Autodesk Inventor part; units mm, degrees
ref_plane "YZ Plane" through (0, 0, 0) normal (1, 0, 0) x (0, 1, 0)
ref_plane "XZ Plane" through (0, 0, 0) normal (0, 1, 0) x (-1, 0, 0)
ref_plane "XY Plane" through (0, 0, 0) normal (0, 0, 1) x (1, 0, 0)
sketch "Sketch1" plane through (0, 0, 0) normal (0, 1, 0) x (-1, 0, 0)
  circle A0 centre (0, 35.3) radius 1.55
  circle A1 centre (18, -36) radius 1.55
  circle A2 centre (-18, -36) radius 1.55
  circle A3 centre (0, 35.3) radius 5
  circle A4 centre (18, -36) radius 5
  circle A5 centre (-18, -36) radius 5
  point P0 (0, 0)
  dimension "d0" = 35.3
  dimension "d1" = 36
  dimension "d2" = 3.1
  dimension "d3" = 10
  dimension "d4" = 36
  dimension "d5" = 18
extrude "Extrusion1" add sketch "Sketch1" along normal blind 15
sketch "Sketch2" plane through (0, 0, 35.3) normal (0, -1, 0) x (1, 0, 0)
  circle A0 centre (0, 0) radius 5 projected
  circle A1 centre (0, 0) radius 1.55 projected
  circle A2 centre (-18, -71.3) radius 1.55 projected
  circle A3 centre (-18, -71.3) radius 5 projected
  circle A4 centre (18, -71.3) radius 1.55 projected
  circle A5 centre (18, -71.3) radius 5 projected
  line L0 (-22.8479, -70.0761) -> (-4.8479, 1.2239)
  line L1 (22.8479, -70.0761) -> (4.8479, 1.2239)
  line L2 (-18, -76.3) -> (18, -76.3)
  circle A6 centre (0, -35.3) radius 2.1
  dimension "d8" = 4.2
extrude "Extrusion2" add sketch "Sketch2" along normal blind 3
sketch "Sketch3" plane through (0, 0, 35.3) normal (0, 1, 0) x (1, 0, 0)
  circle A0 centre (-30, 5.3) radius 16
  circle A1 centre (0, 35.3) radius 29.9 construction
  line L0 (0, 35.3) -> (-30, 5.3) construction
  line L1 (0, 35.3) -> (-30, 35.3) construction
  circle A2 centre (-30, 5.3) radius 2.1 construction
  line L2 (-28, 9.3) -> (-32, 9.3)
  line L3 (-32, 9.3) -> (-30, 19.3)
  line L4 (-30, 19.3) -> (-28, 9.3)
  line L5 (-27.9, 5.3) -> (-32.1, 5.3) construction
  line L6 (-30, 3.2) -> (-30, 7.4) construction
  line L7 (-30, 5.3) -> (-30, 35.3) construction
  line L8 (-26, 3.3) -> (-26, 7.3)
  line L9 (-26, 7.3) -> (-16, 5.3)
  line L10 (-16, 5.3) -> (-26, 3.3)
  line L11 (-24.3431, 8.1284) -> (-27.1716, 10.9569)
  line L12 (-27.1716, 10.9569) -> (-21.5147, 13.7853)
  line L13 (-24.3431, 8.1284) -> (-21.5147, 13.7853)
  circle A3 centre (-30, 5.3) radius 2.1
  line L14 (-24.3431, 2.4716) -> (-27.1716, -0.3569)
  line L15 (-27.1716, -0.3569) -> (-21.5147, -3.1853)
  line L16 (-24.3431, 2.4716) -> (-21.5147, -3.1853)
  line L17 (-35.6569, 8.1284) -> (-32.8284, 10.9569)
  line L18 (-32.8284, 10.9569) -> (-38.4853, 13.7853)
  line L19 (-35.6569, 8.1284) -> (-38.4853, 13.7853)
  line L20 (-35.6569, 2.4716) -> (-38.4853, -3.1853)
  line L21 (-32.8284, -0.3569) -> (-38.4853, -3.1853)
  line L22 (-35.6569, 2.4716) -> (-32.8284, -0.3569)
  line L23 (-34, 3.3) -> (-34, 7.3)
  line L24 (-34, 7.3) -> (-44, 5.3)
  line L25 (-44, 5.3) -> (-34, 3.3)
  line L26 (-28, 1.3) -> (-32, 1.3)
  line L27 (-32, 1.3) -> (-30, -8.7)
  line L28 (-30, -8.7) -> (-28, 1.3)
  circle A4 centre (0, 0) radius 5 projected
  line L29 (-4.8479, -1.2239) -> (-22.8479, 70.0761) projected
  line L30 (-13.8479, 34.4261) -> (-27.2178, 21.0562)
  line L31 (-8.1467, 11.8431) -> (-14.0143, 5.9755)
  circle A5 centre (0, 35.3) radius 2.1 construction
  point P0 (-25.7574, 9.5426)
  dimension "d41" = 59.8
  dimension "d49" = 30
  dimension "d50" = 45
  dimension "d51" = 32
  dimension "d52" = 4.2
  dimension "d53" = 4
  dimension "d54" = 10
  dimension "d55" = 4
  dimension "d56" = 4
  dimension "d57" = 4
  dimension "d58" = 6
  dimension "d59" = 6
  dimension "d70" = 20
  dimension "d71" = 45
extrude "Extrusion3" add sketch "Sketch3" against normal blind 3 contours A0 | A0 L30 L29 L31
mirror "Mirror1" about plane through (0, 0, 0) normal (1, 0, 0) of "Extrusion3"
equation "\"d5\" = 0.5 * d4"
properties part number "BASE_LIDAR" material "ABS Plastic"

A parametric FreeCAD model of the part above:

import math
import FreeCAD as App
import Part
import Sketcher

doc = App.newDocument("Part")
body = doc.addObject("PartDesign::Body", "Body")
body.AllowCompound = True

sketch1 = body.newObject("Sketcher::SketchObject", "Sketch")
sketch1.AttachmentSupport = (doc.getObject("XZ_Plane"), [""])
sketch1.MapMode = "FlatFace"
sketch1.addGeometry(Part.Circle(App.Vector(0, 35.3, 0), App.Vector(0, 0, 1), 5), False)
sketch1.addGeometry(Part.Circle(App.Vector(0, 35.3, 0), App.Vector(0, 0, 1), 1.6), False)
sketch1.addGeometry(Part.Circle(App.Vector(-18, -36, 0), App.Vector(0, 0, 1), 5), False)
sketch1.addGeometry(Part.Circle(App.Vector(-18, -36, 0), App.Vector(0, 0, 1), 1.6), False)
sketch1.addGeometry(Part.Circle(App.Vector(18, -36, 0), App.Vector(0, 0, 1), 5), False)
sketch1.addGeometry(Part.Circle(App.Vector(18, -36, 0), App.Vector(0, 0, 1), 1.6), False)
sketch1.addConstraint(Sketcher.Constraint("Coincident", 1, 3, 0, 3))
sketch1.addConstraint(Sketcher.Constraint("Coincident", 3, 3, 2, 3))
sketch1.addConstraint(Sketcher.Constraint("Coincident", 5, 3, 4, 3))
sketch1.addConstraint(Sketcher.Constraint("Equal", 0, 2))
sketch1.addConstraint(Sketcher.Constraint("Equal", 1, 3))
sketch1.addConstraint(Sketcher.Constraint("Equal", 2, 4))
sketch1.addConstraint(Sketcher.Constraint("Equal", 3, 5))
sketch1.addConstraint(Sketcher.Constraint("Symmetric", 2, 3, 4, 3, -2))
sketch1.addConstraint(Sketcher.Constraint("PointOnObject", 0, 3, -2))
sketch1.addConstraint(Sketcher.Constraint("Diameter", 0, 10.0))
sketch1.addConstraint(Sketcher.Constraint("Diameter", 1, 3.1))
sketch1.addConstraint(Sketcher.Constraint("DistanceX", 2, 3, -1, 1, 18.0))
sketch1.addConstraint(Sketcher.Constraint("DistanceY", 2, 3, -1, 1, 36.0))
sketch1.addConstraint(Sketcher.Constraint("DistanceY", -1, 1, 0, 3, 35.3))
pad1 = body.newObject("PartDesign::Pad", "Pad")
pad1.Profile = sketch1
pad1.Length = 15
pad1.Reversed = True

sketch2 = body.newObject("Sketcher::SketchObject", "Sketch001")
sketch2.AttachmentSupport = (doc.getObject("XZ_Plane"), [""])
sketch2.MapMode = "FlatFace"
sketch2.addGeometry(Part.ArcOfCircle(Part.Circle(App.Vector(0, 35.3, 0), App.Vector(0, 0, 1), 5), math.radians(14), math.radians(166)), False)
sketch2.addGeometry(Part.LineSegment(App.Vector(-4.8, 36.5, 0), App.Vector(-22.8, -34.8, 0)), False)
sketch2.addGeometry(Part.ArcOfCircle(Part.Circle(App.Vector(-18, -36, 0), App.Vector(0, 0, 1), 5), math.radians(166), math.radians(270)), False)
sketch2.addGeometry(Part.LineSegment(App.Vector(-18, -41, 0), App.Vector(18, -41, 0)), False)
sketch2.addGeometry(Part.ArcOfCircle(Part.Circle(App.Vector(18, -36, 0), App.Vector(0, 0, 1), 5), math.radians(-90), math.radians(14)), False)
sketch2.addGeometry(Part.LineSegment(App.Vector(22.8, -34.8, 0), App.Vector(4.8, 36.5, 0)), False)
sketch2.addGeometry(Part.Circle(App.Vector(0, 35.3, 0), App.Vector(0, 0, 1), 1.6), False)
sketch2.addGeometry(Part.Circle(App.Vector(0, 0, 0), App.Vector(0, 0, 1), 2.1), False)
sketch2.addGeometry(Part.Circle(App.Vector(18, -36, 0), App.Vector(0, 0, 1), 1.6), False)
sketch2.addGeometry(Part.Circle(App.Vector(-18, -36, 0), App.Vector(0, 0, 1), 1.6), False)
sketch2.addConstraint(Sketcher.Constraint("Tangent", 0, 2, 1, 1))
sketch2.addConstraint(Sketcher.Constraint("Tangent", 1, 2, 2, 1))
sketch2.addConstraint(Sketcher.Constraint("Tangent", 2, 2, 3, 1))
sketch2.addConstraint(Sketcher.Constraint("Tangent", 3, 2, 4, 1))
sketch2.addConstraint(Sketcher.Constraint("Tangent", 4, 2, 5, 1))
sketch2.addConstraint(Sketcher.Constraint("Tangent", 5, 2, 0, 1))
sketch2.addConstraint(Sketcher.Constraint("Horizontal", 3))
sketch2.addConstraint(Sketcher.Constraint("Coincident", 7, 3, -1, 1))
sketch2.addConstraint(Sketcher.Constraint("Coincident", 6, 3, 0, 3))
sketch2.addConstraint(Sketcher.Constraint("Coincident", 8, 3, 4, 3))
sketch2.addConstraint(Sketcher.Constraint("Coincident", 9, 3, 2, 3))
sketch2.addConstraint(Sketcher.Constraint("Equal", 0, 2))
sketch2.addConstraint(Sketcher.Constraint("Equal", 2, 4))
sketch2.addConstraint(Sketcher.Constraint("Equal", 6, 8))
sketch2.addConstraint(Sketcher.Constraint("Equal", 8, 9))
sketch2.addConstraint(Sketcher.Constraint("Symmetric", 1, 2, 4, 2, -2))
sketch2.addConstraint(Sketcher.Constraint("Diameter", 7, 4.2))
sketch2.addConstraint(Sketcher.Constraint("Radius", 0, 5.0))
sketch2.addConstraint(Sketcher.Constraint("Diameter", 6, 3.1))
sketch2.addConstraint(Sketcher.Constraint("DistanceX", 3, 1, 3, 2, 36.0))
sketch2.addConstraint(Sketcher.Constraint("DistanceY", 2, 3, -1, 1, 36.0))
sketch2.addConstraint(Sketcher.Constraint("DistanceY", -1, 1, 0, 3, 35.3))
pad2 = body.newObject("PartDesign::Pad", "Pad001")
pad2.Profile = sketch2
pad2.Length = 3

sketch3 = body.newObject("Sketcher::SketchObject", "Sketch002")
sketch3.AttachmentSupport = (doc.getObject("XZ_Plane"), [""])
sketch3.MapMode = "FlatFace"
sketch3.addGeometry(Part.ArcOfCircle(Part.Circle(App.Vector(-30, 30, 0), App.Vector(0, 0, 1), 16), math.radians(-2), math.radians(280)), False)
sketch3.addGeometry(Part.LineSegment(App.Vector(-14, 29.3, 0), App.Vector(-8.1, 23.5, 0)), False)
sketch3.addGeometry(Part.LineSegment(App.Vector(-8.1, 23.5, 0), App.Vector(-13.8, 0.9, 0)), False)
sketch3.addGeometry(Part.LineSegment(App.Vector(-13.8, 0.9, 0), App.Vector(-27.2, 14.2, 0)), False)
sketch3.addGeometry(Part.LineSegment(App.Vector(-38.5, 38.5, 0), App.Vector(-35.7, 32.8, 0)), False)
sketch3.addGeometry(Part.LineSegment(App.Vector(-35.7, 32.8, 0), App.Vector(-32.8, 35.7, 0)), False)
sketch3.addGeometry(Part.LineSegment(App.Vector(-32.8, 35.7, 0), App.Vector(-38.5, 38.5, 0)), False)
sketch3.addGeometry(Part.LineSegment(App.Vector(-32, 34, 0), App.Vector(-28, 34, 0)), False)
sketch3.addGeometry(Part.LineSegment(App.Vector(-28, 34, 0), App.Vector(-30, 44, 0)), False)
sketch3.addGeometry(Part.LineSegment(App.Vector(-30, 44, 0), App.Vector(-32, 34, 0)), False)
sketch3.addGeometry(Part.LineSegment(App.Vector(-27.2, 35.7, 0), App.Vector(-24.3, 32.8, 0)), False)
sketch3.addGeometry(Part.LineSegment(App.Vector(-24.3, 32.8, 0), App.Vector(-21.5, 38.5, 0)), False)
sketch3.addGeometry(Part.LineSegment(App.Vector(-21.5, 38.5, 0), App.Vector(-27.2, 35.7, 0)), False)
sketch3.addGeometry(Part.LineSegment(App.Vector(-34, 28, 0), App.Vector(-34, 32, 0)), False)
sketch3.addGeometry(Part.LineSegment(App.Vector(-34, 32, 0), App.Vector(-44, 30, 0)), False)
sketch3.addGeometry(Part.LineSegment(App.Vector(-44, 30, 0), App.Vector(-34, 28, 0)), False)
sketch3.addGeometry(Part.LineSegment(App.Vector(-32.8, 24.3, 0), App.Vector(-35.7, 27.2, 0)), False)
sketch3.addGeometry(Part.LineSegment(App.Vector(-35.7, 27.2, 0), App.Vector(-38.5, 21.5, 0)), False)
sketch3.addGeometry(Part.LineSegment(App.Vector(-38.5, 21.5, 0), App.Vector(-32.8, 24.3, 0)), False)
sketch3.addGeometry(Part.Circle(App.Vector(-30, 30, 0), App.Vector(0, 0, 1), 2.1), False)
sketch3.addGeometry(Part.LineSegment(App.Vector(-16, 30, 0), App.Vector(-26, 32, 0)), False)
sketch3.addGeometry(Part.LineSegment(App.Vector(-26, 32, 0), App.Vector(-26, 28, 0)), False)
sketch3.addGeometry(Part.LineSegment(App.Vector(-26, 28, 0), App.Vector(-16, 30, 0)), False)
sketch3.addGeometry(Part.LineSegment(App.Vector(-21.5, 21.5, 0), App.Vector(-24.3, 27.2, 0)), False)
sketch3.addGeometry(Part.LineSegment(App.Vector(-24.3, 27.2, 0), App.Vector(-27.2, 24.3, 0)), False)
sketch3.addGeometry(Part.LineSegment(App.Vector(-27.2, 24.3, 0), App.Vector(-21.5, 21.5, 0)), False)
sketch3.addGeometry(Part.LineSegment(App.Vector(-30, 16, 0), App.Vector(-28, 26, 0)), False)
sketch3.addGeometry(Part.LineSegment(App.Vector(-28, 26, 0), App.Vector(-32, 26, 0)), False)
sketch3.addGeometry(Part.LineSegment(App.Vector(-32, 26, 0), App.Vector(-30, 16, 0)), False)
sketch3.addConstraint(Sketcher.Constraint("Coincident", 0, 1, 1, 1))
sketch3.addConstraint(Sketcher.Constraint("Coincident", 1, 2, 2, 1))
sketch3.addConstraint(Sketcher.Constraint("Coincident", 2, 2, 3, 1))
sketch3.addConstraint(Sketcher.Constraint("Coincident", 3, 2, 0, 2))
sketch3.addConstraint(Sketcher.Constraint("Coincident", 4, 2, 5, 1))
sketch3.addConstraint(Sketcher.Constraint("Coincident", 5, 2, 6, 1))
sketch3.addConstraint(Sketcher.Constraint("Coincident", 6, 2, 4, 1))
sketch3.addConstraint(Sketcher.Constraint("Coincident", 7, 2, 8, 1))
sketch3.addConstraint(Sketcher.Constraint("Coincident", 8, 2, 9, 1))
sketch3.addConstraint(Sketcher.Constraint("Coincident", 9, 2, 7, 1))
sketch3.addConstraint(Sketcher.Constraint("Coincident", 10, 2, 11, 1))
sketch3.addConstraint(Sketcher.Constraint("Coincident", 11, 2, 12, 1))
sketch3.addConstraint(Sketcher.Constraint("Coincident", 12, 2, 10, 1))
sketch3.addConstraint(Sketcher.Constraint("Coincident", 13, 2, 14, 1))
sketch3.addConstraint(Sketcher.Constraint("Coincident", 14, 2, 15, 1))
sketch3.addConstraint(Sketcher.Constraint("Coincident", 15, 2, 13, 1))
sketch3.addConstraint(Sketcher.Constraint("Coincident", 16, 2, 17, 1))
sketch3.addConstraint(Sketcher.Constraint("Coincident", 17, 2, 18, 1))
sketch3.addConstraint(Sketcher.Constraint("Coincident", 18, 2, 16, 1))
sketch3.addConstraint(Sketcher.Constraint("Coincident", 20, 2, 21, 1))
sketch3.addConstraint(Sketcher.Constraint("Coincident", 21, 2, 22, 1))
sketch3.addConstraint(Sketcher.Constraint("Coincident", 22, 2, 20, 1))
sketch3.addConstraint(Sketcher.Constraint("Coincident", 23, 2, 24, 1))
sketch3.addConstraint(Sketcher.Constraint("Coincident", 24, 2, 25, 1))
sketch3.addConstraint(Sketcher.Constraint("Coincident", 25, 2, 23, 1))
sketch3.addConstraint(Sketcher.Constraint("Coincident", 26, 2, 27, 1))
sketch3.addConstraint(Sketcher.Constraint("Coincident", 27, 2, 28, 1))
sketch3.addConstraint(Sketcher.Constraint("Coincident", 28, 2, 26, 1))
sketch3.addConstraint(Sketcher.Constraint("Horizontal", 7))
sketch3.addConstraint(Sketcher.Constraint("Vertical", 13))
sketch3.addConstraint(Sketcher.Constraint("Vertical", 21))
sketch3.addConstraint(Sketcher.Constraint("Horizontal", 27))
sketch3.addConstraint(Sketcher.Constraint("Coincident", 19, 3, 0, 3))
sketch3.addConstraint(Sketcher.Constraint("Parallel", 1, 3))
sketch3.addConstraint(Sketcher.Constraint("Perpendicular", 3, 5))
sketch3.addConstraint(Sketcher.Constraint("Perpendicular", 5, 10))
sketch3.addConstraint(Sketcher.Constraint("Perpendicular", 6, 11))
sketch3.addConstraint(Sketcher.Constraint("Perpendicular", 4, 12))
sketch3.addConstraint(Sketcher.Constraint("Perpendicular", 8, 14))
sketch3.addConstraint(Sketcher.Constraint("Perpendicular", 9, 15))
sketch3.addConstraint(Sketcher.Constraint("Parallel", 10, 16))
sketch3.addConstraint(Sketcher.Constraint("Parallel", 11, 17))
sketch3.addConstraint(Sketcher.Constraint("Parallel", 12, 18))
sketch3.addConstraint(Sketcher.Constraint("Parallel", 15, 20))
sketch3.addConstraint(Sketcher.Constraint("Parallel", 14, 22))
sketch3.addConstraint(Sketcher.Constraint("Perpendicular", 18, 23))
sketch3.addConstraint(Sketcher.Constraint("Perpendicular", 16, 24))
sketch3.addConstraint(Sketcher.Constraint("Perpendicular", 17, 25))
sketch3.addConstraint(Sketcher.Constraint("Perpendicular", 20, 26))
sketch3.addConstraint(Sketcher.Constraint("Perpendicular", 22, 28))
sketch3.addConstraint(Sketcher.Constraint("Horizontal", 4, 2, 10, 2))
sketch3.addConstraint(Sketcher.Constraint("Horizontal", 6, 2, 11, 2))
sketch3.addConstraint(Sketcher.Constraint("Horizontal", 5, 2, 12, 2))
sketch3.addConstraint(Sketcher.Constraint("Horizontal", 19, 3, 14, 2))
sketch3.addConstraint(Sketcher.Constraint("Horizontal", 13, 2, 20, 2))
sketch3.addConstraint(Sketcher.Constraint("Horizontal", 15, 2, 21, 2))
sketch3.addConstraint(Sketcher.Constraint("Horizontal", 14, 2, 22, 2))
sketch3.addConstraint(Sketcher.Constraint("Horizontal", 16, 2, 23, 2))
sketch3.addConstraint(Sketcher.Constraint("Horizontal", 18, 2, 24, 2))
sketch3.addConstraint(Sketcher.Constraint("Vertical", 19, 3, 8, 2))
sketch3.addConstraint(Sketcher.Constraint("Vertical", 4, 2, 16, 2))
sketch3.addConstraint(Sketcher.Constraint("Vertical", 6, 2, 17, 2))
sketch3.addConstraint(Sketcher.Constraint("Vertical", 10, 2, 23, 2))
sketch3.addConstraint(Sketcher.Constraint("Vertical", 12, 2, 24, 2))
sketch3.addConstraint(Sketcher.Constraint("Vertical", 7, 2, 26, 2))
sketch3.addConstraint(Sketcher.Constraint("Vertical", 9, 2, 27, 2))
sketch3.addConstraint(Sketcher.Constraint("Equal", 27, 13))
sketch3.addConstraint(Sketcher.Constraint("Radius", 0, 16.0))
sketch3.addConstraint(Sketcher.Constraint("Diameter", 19, 4.2))
sketch3.addConstraint(Sketcher.Constraint("DistanceX", 7, 1, 7, 2, 4.0))
sketch3.addConstraint(Sketcher.Constraint("Distance", 5, 4.0))
sketch3.addConstraint(Sketcher.Constraint("DistanceX", 0, 3, -1, 1, 30.0))
sketch3.addConstraint(Sketcher.Constraint("DistanceY", -1, 1, 0, 3, 30.0))
sketch3.addConstraint(Sketcher.Constraint("DistanceY", 0, 3, 7, 2, 4.0))
sketch3.addConstraint(Sketcher.Constraint("DistanceY", 7, 2, 8, 2, 10.0))
sketch3.addConstraint(Sketcher.Constraint("DistanceX", 13, 2, 0, 3, 4.0))
sketch3.addConstraint(Sketcher.Constraint("DistanceX", 0, 3, 20, 2, 4.0))
sketch3.addConstraint(Sketcher.Constraint("DistanceY", 26, 2, 0, 3, 4.0))
sketch3.addConstraint(Sketcher.Constraint("DistanceX", 3, 2, 2, 2, 13.37))
sketch3.addConstraint(Sketcher.Constraint("Distance", 1, 8.298))
sketch3.addConstraint(Sketcher.Constraint("DistanceY", -1, 1, 1, 2, 23.457))
sketch3.addConstraint(Sketcher.Constraint("DistanceX", 2, 2, -1, 1, 13.848))
sketch3.addConstraint(Sketcher.Constraint("DistanceX", 4, 2, -1, 1, 35.657))
sketch3.addConstraint(Sketcher.Constraint("DistanceY", -1, 1, 5, 2, 35.657))
sketch3.addConstraint(Sketcher.Constraint("DistanceX", 10, 2, -1, 1, 24.343))
sketch3.addConstraint(Sketcher.Constraint("DistanceY", -1, 1, 18, 2, 24.343))
sketch3.addConstraint(Sketcher.Constraint("DistanceY", 4, 2, 6, 2, 5.657))
pad3 = body.newObject("PartDesign::Pad", "Pad002")
pad3.Profile = sketch3
pad3.Length = 3
doc.recompute()

mirrored = body.newObject("PartDesign::Mirrored", "Mirrored")
mirrored.Originals = [pad3]
mirrored.MirrorPlane = (doc.getObject("YZ_Plane"), [""])
body.Tip = mirrored

doc.recompute()
